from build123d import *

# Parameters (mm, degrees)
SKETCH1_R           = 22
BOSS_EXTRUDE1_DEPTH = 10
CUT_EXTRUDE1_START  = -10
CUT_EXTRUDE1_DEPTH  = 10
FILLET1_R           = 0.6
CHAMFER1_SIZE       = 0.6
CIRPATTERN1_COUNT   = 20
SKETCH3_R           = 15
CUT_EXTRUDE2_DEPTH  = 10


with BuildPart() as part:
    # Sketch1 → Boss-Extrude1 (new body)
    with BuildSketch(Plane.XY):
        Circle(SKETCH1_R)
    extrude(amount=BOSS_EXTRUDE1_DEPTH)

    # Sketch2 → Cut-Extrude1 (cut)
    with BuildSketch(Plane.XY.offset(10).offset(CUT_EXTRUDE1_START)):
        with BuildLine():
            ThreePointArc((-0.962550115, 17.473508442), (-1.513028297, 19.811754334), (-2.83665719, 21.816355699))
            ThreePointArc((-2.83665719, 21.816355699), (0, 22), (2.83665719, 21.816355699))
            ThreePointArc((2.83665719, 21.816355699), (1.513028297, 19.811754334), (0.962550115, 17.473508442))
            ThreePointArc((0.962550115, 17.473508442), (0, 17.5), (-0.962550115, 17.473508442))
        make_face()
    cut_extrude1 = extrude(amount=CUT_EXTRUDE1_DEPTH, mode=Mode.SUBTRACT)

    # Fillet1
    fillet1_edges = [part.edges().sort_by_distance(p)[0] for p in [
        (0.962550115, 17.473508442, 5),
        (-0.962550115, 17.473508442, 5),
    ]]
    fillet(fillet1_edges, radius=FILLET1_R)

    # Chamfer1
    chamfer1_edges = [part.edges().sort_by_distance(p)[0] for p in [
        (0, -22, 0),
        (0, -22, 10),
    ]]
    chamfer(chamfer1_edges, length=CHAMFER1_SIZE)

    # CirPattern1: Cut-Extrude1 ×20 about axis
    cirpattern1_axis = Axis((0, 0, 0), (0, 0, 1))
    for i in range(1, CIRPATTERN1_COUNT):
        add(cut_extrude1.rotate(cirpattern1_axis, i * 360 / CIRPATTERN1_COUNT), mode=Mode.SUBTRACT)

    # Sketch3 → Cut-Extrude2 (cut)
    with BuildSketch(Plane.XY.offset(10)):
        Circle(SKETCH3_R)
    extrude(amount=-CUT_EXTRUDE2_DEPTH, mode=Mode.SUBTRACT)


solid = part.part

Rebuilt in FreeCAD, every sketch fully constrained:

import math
import FreeCAD as App
import Part
import Sketcher
Q = App.Units.Quantity


def edges_at(feature, points):
    """Names of the edges that pass closest to the given points."""
    edges = feature.Shape.Edges
    near = lambda p: min(range(len(edges)), key=lambda i: edges[i].distToShape(Part.Vertex(*p))[0])
    return sorted({f"Edge{near(p) + 1}" for p in points})

doc = App.newDocument("Part")
body = doc.addObject("PartDesign::Body", "Body")

sketch1 = body.newObject("Sketcher::SketchObject", "Sketch")
sketch1.AttachmentSupport = (doc.getObject("XY_Plane"), [""])
sketch1.MapMode = "FlatFace"
sketch1.addGeometry(Part.Circle(App.Vector(0, 0, 0), App.Vector(0, 0, 1), 22), False)
sketch1.addConstraint([
    Sketcher.Constraint("Coincident", 0, 3, -1, 1),
    Sketcher.Constraint("Diameter", 0, Q("44 mm")),
])
pad1 = body.newObject("PartDesign::Pad", "Pad")
pad1.Profile = sketch1
pad1.Length = 10

sketch2 = body.newObject("Sketcher::SketchObject", "Sketch001")
sketch2.AttachmentSupport = (doc.getObject("XY_Plane"), [""])
sketch2.MapMode = "FlatFace"
sketch2.addGeometry([
    Part.ArcOfCircle(Part.Circle(App.Vector(-7.8, 17.1, 0), App.Vector(0, 0, 1), 6.9), math.radians(3), math.radians(44)),
    Part.ArcOfCircle(Part.Circle(App.Vector(0, 0, 0), App.Vector(0, 0, 1), 17.5), math.radians(86.85), math.radians(93.15)),
    Part.ArcOfCircle(Part.Circle(App.Vector(7.8, 17.1, 0), App.Vector(0, 0, 1), 6.9), math.radians(136), math.radians(177)),
    Part.ArcOfCircle(Part.Circle(App.Vector(0, 0, 0), App.Vector(0, 0, 1), 22), math.radians(82.59), math.radians(97.41)),
], False)
sketch2.addConstraint([
    Sketcher.Constraint("Coincident", 0, 1, 1, 2),
    Sketcher.Constraint("Coincident", 1, 1, 2, 2),
    Sketcher.Constraint("Coincident", 2, 1, 3, 1),
    Sketcher.Constraint("Coincident", 3, 2, 0, 2),
    Sketcher.Constraint("Coincident", 1, 3, -1, 1),
    Sketcher.Constraint("Coincident", 3, 3, -1, 1),
    Sketcher.Constraint("Equal", 0, 2),
    Sketcher.Constraint("Symmetric", 0, 3, 2, 3, -2),
    Sketcher.Constraint("Radius", 3, Q("22 mm")),
    Sketcher.Constraint("Radius", 1, Q("17.5 mm")),
    Sketcher.Constraint("Radius", 0, Q("6.852667 mm")),
    Sketcher.Constraint("DistanceX", 0, 1, 1, 1, Q("1.9251 mm")),
    Sketcher.Constraint("DistanceX", 0, 3, 2, 1, Q("10.6415 mm")),
])
pocket1 = body.newObject("PartDesign::Pocket", "Pocket")
pocket1.Profile = sketch2
pocket1.Length = 10
pocket1.Reversed = True
doc.recompute()

fillet = body.newObject("PartDesign::Fillet", "Fillet")
fillet.Base = (pocket1, edges_at(pocket1, [(0.963, 17.474, 5), (-0.963, 17.474, 5)]))
fillet.Radius = 0.6
doc.recompute()

chamfer = body.newObject("PartDesign::Chamfer", "Chamfer")
chamfer.Base = (fillet, edges_at(fillet, [(0, -22, 0), (0, -22, 10)]))
chamfer.Size = 0.6
doc.recompute()

polarpattern = body.newObject("PartDesign::PolarPattern", "PolarPattern")
polarpattern.Originals = [pocket1]
polarpattern.Axis = (doc.getObject("Z_Axis"), [""])
polarpattern.Angle = 360
polarpattern.Occurrences = 20
body.Tip = polarpattern

sketch3 = body.newObject("Sketcher::SketchObject", "Sketch002")
sketch3.AttachmentSupport = (doc.getObject("XY_Plane"), [""])
sketch3.MapMode = "FlatFace"
sketch3.AttachmentOffset = App.Placement(App.Vector(0, 0, 10), App.Rotation())
sketch3.addGeometry(Part.Circle(App.Vector(0, 0, 0), App.Vector(0, 0, 1), 15), False)
sketch3.addConstraint([
    Sketcher.Constraint("Coincident", 0, 3, -1, 1),
    Sketcher.Constraint("Diameter", 0, Q("30 mm")),
])
pocket2 = body.newObject("PartDesign::Pocket", "Pocket001")
pocket2.Profile = sketch3
pocket2.Length = 10

doc.recompute()
